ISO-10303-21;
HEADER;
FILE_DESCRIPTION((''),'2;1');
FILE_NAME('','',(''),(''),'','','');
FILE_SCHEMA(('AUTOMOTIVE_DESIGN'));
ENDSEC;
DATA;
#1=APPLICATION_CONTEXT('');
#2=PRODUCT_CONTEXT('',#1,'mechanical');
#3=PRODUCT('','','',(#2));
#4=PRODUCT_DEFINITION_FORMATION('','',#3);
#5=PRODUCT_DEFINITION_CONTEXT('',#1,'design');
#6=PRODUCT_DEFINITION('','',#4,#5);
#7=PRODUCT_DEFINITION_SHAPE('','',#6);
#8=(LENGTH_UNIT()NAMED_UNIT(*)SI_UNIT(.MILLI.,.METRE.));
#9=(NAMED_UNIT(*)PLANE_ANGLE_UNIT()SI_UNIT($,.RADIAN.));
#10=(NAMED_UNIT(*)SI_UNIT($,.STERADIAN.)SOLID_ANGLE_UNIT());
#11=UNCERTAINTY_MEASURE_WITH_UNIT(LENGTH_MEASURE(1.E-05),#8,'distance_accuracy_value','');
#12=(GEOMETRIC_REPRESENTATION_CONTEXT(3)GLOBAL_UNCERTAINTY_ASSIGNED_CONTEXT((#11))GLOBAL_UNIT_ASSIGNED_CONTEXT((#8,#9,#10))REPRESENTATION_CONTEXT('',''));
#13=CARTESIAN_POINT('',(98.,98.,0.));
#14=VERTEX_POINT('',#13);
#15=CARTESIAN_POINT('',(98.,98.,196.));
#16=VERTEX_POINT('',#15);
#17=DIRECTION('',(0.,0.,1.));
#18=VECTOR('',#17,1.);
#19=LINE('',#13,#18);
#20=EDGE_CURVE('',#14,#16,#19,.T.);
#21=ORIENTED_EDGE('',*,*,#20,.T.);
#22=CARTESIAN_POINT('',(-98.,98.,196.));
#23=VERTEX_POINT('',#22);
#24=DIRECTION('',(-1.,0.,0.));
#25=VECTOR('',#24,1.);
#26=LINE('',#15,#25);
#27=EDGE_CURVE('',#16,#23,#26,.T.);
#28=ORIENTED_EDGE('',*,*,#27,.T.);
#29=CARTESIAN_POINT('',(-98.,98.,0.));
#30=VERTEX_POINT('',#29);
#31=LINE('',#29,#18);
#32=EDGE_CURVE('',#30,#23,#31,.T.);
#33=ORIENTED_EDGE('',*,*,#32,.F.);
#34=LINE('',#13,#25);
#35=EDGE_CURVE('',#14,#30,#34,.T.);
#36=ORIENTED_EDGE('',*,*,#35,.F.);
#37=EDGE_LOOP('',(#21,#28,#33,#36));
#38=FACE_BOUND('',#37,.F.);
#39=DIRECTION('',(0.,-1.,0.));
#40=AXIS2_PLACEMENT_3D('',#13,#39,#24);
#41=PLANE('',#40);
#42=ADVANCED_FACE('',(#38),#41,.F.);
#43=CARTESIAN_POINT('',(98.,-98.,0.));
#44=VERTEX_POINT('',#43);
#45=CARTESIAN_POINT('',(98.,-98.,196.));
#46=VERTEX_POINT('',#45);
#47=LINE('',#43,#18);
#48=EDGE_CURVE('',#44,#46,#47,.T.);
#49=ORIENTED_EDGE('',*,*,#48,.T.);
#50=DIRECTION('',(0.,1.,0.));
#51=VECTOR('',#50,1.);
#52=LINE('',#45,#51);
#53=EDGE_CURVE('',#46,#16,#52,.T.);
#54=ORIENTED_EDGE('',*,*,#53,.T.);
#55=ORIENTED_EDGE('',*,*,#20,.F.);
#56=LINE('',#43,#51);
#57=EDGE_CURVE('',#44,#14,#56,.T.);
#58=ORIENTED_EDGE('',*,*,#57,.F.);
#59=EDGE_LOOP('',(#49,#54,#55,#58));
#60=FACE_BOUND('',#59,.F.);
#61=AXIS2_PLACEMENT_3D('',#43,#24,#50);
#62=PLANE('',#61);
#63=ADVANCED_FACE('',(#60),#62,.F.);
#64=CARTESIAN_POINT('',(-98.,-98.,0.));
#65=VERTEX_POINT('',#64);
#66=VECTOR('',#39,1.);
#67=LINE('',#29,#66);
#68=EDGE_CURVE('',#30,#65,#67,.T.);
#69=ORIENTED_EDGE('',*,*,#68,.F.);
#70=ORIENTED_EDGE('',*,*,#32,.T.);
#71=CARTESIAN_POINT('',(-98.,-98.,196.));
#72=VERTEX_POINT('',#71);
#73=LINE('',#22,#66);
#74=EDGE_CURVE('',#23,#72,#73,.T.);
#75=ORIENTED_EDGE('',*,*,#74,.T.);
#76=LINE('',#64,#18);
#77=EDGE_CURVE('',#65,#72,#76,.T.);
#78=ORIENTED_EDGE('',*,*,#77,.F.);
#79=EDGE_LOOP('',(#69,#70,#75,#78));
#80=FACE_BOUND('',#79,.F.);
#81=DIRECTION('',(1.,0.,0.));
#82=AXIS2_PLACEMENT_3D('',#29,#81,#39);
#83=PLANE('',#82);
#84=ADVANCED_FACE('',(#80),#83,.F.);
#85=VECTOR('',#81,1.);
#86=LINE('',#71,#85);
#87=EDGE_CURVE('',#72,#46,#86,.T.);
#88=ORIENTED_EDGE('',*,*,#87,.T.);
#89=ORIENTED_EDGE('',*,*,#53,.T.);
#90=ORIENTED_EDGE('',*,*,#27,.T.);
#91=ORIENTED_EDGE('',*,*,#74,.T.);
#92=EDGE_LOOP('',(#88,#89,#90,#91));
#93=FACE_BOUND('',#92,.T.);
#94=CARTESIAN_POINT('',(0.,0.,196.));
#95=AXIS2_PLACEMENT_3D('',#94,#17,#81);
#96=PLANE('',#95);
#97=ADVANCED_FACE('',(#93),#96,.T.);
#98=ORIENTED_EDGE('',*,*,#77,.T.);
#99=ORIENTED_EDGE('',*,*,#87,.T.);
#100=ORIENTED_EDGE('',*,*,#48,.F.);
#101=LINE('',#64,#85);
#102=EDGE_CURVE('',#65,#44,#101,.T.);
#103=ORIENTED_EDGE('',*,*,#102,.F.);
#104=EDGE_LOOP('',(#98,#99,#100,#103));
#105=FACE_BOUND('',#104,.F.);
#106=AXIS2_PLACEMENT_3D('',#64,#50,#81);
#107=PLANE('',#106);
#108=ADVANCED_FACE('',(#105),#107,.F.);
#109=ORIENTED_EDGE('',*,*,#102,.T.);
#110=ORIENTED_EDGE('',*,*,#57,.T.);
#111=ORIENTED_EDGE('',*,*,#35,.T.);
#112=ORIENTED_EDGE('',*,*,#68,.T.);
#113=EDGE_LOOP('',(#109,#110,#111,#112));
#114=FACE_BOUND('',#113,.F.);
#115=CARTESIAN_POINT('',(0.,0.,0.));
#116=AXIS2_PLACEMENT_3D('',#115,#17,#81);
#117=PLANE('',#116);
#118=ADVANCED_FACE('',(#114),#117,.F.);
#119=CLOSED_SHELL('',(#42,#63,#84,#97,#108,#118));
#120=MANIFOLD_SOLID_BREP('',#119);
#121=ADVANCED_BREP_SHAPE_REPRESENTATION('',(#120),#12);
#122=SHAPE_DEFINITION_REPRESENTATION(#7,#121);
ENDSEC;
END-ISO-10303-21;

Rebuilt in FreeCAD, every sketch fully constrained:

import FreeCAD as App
import Part
import Sketcher

V = App.Vector
Q = App.Units.Quantity


def add_polygon(sketch, points):
    """Adds a closed chain of lines whose ends are joined by coincident constraints."""
    first, n = sketch.GeometryCount, len(points)
    for a, b in zip(points, points[1:] + points[:1]):
        sketch.addGeometry(Part.LineSegment(App.Vector(*a, 0), App.Vector(*b, 0)), False)
    for i in range(n):
        sketch.addConstraint(Sketcher.Constraint("Coincident", first + i, 2, first + (i + 1) % n, 1))

doc = App.newDocument("Part")
body = doc.addObject("PartDesign::Body", "Body")

sketch1 = doc.addObject("Sketcher::SketchObject", "Sketch")
body.addObject(sketch1)
sketch1.AttachmentSupport = (doc.XY_Plane, [""])
sketch1.MapMode = "FlatFace"
add_polygon(sketch1, [(-98, 98), (-98, -98), (98, -98), (98, 98)])
sketch1.addConstraint(Sketcher.Constraint("Vertical", 0))
sketch1.addConstraint(Sketcher.Constraint("Horizontal", 1))
sketch1.addConstraint(Sketcher.Constraint("Vertical", 2))
sketch1.addConstraint(Sketcher.Constraint("Horizontal", 3))
sketch1.addConstraint(Sketcher.Constraint("Symmetric", 0, 2, 2, 2, -1, 1))
sketch1.addConstraint(Sketcher.Constraint("Equal", 3, 0))
sketch1.addConstraint(Sketcher.Constraint("DistanceX", 1, 1, 1, 2, Q("196 mm")))
pad1 = doc.addObject("PartDesign::Pad", "Pad")
body.addObject(pad1)
pad1.Profile = sketch1
pad1.Length = 196

doc.recompute()
